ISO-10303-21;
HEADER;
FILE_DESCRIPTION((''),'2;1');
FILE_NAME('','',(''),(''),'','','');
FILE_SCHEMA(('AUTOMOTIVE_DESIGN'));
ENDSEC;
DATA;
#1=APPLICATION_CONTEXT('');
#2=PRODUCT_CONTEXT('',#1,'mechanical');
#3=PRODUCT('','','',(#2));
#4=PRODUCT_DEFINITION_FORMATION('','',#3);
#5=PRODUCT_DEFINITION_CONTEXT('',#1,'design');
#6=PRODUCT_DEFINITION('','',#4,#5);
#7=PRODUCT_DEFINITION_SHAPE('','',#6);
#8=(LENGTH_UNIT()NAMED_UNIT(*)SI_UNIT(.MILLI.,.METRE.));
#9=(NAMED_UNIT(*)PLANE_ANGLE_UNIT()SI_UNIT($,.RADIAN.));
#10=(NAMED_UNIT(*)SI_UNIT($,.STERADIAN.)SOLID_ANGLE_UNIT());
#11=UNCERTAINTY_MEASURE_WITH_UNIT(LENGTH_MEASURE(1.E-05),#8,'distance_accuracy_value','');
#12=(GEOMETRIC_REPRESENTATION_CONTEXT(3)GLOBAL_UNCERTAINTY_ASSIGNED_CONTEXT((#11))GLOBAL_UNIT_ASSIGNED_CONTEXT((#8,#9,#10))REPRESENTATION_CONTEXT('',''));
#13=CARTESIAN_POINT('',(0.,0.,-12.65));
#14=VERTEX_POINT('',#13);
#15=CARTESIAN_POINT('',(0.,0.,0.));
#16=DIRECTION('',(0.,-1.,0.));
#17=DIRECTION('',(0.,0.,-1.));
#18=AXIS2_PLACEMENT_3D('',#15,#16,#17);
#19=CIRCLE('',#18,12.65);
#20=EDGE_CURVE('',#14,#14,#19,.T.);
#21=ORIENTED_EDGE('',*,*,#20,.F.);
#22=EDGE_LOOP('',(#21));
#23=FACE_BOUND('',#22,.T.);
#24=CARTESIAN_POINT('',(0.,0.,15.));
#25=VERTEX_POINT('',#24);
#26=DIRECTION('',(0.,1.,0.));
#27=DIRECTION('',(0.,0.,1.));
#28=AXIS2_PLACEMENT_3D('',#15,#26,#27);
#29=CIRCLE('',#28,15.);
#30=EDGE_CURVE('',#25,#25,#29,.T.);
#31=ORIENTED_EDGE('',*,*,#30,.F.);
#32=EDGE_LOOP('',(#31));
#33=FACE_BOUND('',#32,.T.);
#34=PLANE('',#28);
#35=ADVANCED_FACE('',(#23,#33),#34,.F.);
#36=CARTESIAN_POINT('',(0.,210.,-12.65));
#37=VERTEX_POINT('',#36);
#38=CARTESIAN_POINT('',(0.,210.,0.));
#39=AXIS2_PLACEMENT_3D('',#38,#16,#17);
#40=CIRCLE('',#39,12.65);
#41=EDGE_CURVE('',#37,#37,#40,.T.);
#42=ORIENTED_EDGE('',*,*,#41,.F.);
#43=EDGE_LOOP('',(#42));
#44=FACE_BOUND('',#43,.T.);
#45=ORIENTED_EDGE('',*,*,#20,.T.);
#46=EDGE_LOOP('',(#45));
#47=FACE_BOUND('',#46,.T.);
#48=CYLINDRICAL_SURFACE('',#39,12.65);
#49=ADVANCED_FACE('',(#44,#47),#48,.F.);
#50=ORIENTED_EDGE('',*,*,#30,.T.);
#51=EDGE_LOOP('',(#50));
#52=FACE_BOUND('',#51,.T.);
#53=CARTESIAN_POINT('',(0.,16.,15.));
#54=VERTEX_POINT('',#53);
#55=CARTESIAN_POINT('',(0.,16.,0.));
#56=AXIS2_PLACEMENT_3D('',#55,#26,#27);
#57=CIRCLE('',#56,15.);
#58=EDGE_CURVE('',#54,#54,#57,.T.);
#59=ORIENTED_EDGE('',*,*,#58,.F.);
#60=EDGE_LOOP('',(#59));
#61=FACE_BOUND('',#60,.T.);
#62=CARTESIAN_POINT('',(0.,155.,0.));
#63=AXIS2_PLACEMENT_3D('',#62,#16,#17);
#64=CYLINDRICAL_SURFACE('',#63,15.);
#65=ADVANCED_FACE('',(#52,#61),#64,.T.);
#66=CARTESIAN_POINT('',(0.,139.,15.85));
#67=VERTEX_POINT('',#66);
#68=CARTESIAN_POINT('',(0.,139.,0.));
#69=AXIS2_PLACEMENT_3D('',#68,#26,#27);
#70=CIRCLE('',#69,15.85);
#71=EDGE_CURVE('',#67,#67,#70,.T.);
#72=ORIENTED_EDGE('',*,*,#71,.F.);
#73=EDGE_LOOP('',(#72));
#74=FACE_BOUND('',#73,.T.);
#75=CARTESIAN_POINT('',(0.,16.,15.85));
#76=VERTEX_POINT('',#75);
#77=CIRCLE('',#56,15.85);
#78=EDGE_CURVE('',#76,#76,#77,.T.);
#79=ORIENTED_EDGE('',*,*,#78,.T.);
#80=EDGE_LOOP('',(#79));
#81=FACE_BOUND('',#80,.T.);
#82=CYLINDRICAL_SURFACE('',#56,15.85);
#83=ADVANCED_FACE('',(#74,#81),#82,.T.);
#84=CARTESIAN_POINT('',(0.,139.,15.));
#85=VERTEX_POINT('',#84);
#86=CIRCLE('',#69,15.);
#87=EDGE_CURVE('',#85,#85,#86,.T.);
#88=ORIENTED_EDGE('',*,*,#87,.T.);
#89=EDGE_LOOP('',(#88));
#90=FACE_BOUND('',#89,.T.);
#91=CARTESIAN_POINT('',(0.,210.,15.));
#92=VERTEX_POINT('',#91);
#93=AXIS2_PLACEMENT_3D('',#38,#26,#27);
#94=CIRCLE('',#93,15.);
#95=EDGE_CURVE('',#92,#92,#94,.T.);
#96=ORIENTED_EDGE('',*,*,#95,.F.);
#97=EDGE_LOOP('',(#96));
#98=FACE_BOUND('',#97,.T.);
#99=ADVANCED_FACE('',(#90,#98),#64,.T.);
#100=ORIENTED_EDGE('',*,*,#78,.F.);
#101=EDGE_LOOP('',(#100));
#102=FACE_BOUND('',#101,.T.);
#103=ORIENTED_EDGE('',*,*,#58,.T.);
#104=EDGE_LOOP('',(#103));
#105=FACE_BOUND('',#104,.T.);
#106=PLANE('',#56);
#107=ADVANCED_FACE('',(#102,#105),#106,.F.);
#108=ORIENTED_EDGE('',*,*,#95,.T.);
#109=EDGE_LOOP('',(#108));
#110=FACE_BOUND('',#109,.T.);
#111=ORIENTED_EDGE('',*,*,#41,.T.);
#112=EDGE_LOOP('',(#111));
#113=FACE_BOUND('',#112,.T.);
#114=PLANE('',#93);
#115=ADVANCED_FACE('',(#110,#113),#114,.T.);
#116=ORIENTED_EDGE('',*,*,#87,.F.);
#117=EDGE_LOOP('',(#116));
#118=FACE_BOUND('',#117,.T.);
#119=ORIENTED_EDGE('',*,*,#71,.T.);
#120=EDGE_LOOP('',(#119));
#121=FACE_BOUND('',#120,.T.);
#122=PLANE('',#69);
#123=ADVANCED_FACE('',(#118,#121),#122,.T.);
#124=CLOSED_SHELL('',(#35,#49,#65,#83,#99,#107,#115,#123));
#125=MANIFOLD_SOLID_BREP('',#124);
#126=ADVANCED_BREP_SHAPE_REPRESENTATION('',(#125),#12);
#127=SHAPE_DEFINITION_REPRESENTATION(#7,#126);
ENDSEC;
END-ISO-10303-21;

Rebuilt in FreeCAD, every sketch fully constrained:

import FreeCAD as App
import Part
import Sketcher
from FreeCAD import Vector
Q = App.Units.Quantity

doc = App.newDocument("Part")
body = doc.addObject("PartDesign::Body", "Body")

# Sketch on XZ plane
sketch1 = body.newObject("Sketcher::SketchObject", "Sketch")
sketch1.AttachmentSupport = (doc.getObject("XZ_Plane"), [""])
sketch1.MapMode = "FlatFace"
sketch1.addGeometry(Part.Circle(Vector(0, 0, 0), Vector(0, 0, 1), 15), False)
sketch1.addConstraint([
    Sketcher.Constraint("Coincident", 0, 3, -1, 1),
    Sketcher.Constraint("Diameter", 0, Q("30 mm")),
])
pad1 = body.newObject("PartDesign::Pad", "Pad")
pad1.Profile = sketch1
pad1.Length = 155
pad1.Reversed = True

# Sketch on XZ plane
sketch2 = body.newObject("Sketcher::SketchObject", "Sketch001")
sketch2.AttachmentSupport = (doc.getObject("XZ_Plane"), [""])
sketch2.MapMode = "FlatFace"
sketch2.AttachmentOffset = App.Placement(Vector(0, 0, -139), App.Rotation())
sketch2.addGeometry(Part.Circle(Vector(0, 0, 0), Vector(0, 0, 1), 15.85), False)
sketch2.addConstraint([
    Sketcher.Constraint("Coincident", 0, 3, -1, 1),
    Sketcher.Constraint("Diameter", 0, Q("31.7 mm")),
])
pad2 = body.newObject("PartDesign::Pad", "Pad001")
pad2.Profile = sketch2
pad2.Length = 123

# Sketch on XZ plane
sketch3 = body.newObject("Sketcher::SketchObject", "Sketch002")
sketch3.AttachmentSupport = (doc.getObject("XZ_Plane"), [""])
sketch3.MapMode = "FlatFace"
sketch3.AttachmentOffset = App.Placement(Vector(0, 0, -155), App.Rotation())
sketch3.addGeometry(Part.Circle(Vector(0, 0, 0), Vector(0, 0, 1), 15), False)
sketch3.addConstraint([
    Sketcher.Constraint("Coincident", 0, 3, -1, 1),
    Sketcher.Constraint("Diameter", 0, Q("30 mm")),
])
pad3 = body.newObject("PartDesign::Pad", "Pad002")
pad3.Profile = sketch3
pad3.Length = 55
pad3.Reversed = True

# Sketch on XZ plane
sketch4 = body.newObject("Sketcher::SketchObject", "Sketch003")
sketch4.AttachmentSupport = (doc.getObject("XZ_Plane"), [""])
sketch4.MapMode = "FlatFace"
sketch4.addGeometry(Part.Circle(Vector(0, 0, 0), Vector(0, 0, 1), 12.65), False)
sketch4.addConstraint([
    Sketcher.Constraint("Coincident", 0, 3, -1, 1),
    Sketcher.Constraint("Diameter", 0, Q("25.3 mm")),
])
pocket1 = body.newObject("PartDesign::Pocket", "Pocket")
pocket1.Profile = sketch4
pocket1.Type = "ThroughAll"

doc.recompute()
